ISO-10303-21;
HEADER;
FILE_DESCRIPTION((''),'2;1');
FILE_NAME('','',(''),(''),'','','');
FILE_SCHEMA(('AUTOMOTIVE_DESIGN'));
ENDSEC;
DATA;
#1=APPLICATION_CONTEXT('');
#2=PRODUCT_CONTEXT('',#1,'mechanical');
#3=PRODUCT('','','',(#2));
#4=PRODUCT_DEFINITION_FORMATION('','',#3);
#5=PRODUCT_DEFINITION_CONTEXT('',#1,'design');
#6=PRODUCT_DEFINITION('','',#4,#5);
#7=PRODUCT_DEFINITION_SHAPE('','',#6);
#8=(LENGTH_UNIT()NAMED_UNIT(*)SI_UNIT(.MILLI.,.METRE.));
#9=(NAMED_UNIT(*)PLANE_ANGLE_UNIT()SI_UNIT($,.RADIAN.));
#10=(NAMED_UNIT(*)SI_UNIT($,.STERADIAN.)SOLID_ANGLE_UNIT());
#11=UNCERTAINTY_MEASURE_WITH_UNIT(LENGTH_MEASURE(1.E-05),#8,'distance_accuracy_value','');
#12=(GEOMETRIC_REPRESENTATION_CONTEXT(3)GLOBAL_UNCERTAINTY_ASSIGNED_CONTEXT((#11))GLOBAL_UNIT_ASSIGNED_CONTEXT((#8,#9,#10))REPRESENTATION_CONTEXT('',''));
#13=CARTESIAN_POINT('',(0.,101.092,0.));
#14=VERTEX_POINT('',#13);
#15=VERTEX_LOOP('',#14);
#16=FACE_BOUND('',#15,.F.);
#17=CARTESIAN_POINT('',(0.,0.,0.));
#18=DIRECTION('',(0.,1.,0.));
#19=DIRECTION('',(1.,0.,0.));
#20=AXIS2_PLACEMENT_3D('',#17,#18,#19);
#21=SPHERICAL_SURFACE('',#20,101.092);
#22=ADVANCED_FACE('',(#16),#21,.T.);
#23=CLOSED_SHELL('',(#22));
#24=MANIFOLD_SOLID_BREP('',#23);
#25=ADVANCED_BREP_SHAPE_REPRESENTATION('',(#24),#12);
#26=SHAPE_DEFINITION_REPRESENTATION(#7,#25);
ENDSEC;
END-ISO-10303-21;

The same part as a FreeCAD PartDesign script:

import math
import FreeCAD as App
import Part
import Sketcher
Q = App.Units.Quantity

doc = App.newDocument("Part")
body = doc.addObject("PartDesign::Body", "Body")

# Sketch on XY plane
sketch1 = doc.addObject("Sketcher::SketchObject", "Sketch")
body.addObject(sketch1)
sketch1.AttachmentSupport = (doc.XY_Plane, [""])
sketch1.MapMode = "FlatFace"
sketch1.addGeometry([
    Part.LineSegment(App.Vector(0, 101, 0), App.Vector(0, -101, 0)),
    Part.ArcOfCircle(Part.Circle(App.Vector(0, 0, 0), App.Vector(0, 0, 1), 101), math.radians(-90), math.radians(90)),
], False)
sketch1.addConstraint([
    Sketcher.Constraint("Coincident", 0, 1, 1, 2),
    Sketcher.Constraint("Coincident", 1, 1, 0, 2),
    Sketcher.Constraint("Vertical", 0),
    Sketcher.Constraint("Coincident", 1, 3, -1, 1),
    Sketcher.Constraint("PointOnObject", 0, 1, -2),
    Sketcher.Constraint("Radius", 1, Q("3.98 in")),
])
revolution = doc.addObject("PartDesign::Revolution", "Revolution")
body.addObject(revolution)
revolution.Profile = sketch1
revolution.ReferenceAxis = (sketch1, ["V_Axis"])
revolution.Angle = 360

doc.recompute()
